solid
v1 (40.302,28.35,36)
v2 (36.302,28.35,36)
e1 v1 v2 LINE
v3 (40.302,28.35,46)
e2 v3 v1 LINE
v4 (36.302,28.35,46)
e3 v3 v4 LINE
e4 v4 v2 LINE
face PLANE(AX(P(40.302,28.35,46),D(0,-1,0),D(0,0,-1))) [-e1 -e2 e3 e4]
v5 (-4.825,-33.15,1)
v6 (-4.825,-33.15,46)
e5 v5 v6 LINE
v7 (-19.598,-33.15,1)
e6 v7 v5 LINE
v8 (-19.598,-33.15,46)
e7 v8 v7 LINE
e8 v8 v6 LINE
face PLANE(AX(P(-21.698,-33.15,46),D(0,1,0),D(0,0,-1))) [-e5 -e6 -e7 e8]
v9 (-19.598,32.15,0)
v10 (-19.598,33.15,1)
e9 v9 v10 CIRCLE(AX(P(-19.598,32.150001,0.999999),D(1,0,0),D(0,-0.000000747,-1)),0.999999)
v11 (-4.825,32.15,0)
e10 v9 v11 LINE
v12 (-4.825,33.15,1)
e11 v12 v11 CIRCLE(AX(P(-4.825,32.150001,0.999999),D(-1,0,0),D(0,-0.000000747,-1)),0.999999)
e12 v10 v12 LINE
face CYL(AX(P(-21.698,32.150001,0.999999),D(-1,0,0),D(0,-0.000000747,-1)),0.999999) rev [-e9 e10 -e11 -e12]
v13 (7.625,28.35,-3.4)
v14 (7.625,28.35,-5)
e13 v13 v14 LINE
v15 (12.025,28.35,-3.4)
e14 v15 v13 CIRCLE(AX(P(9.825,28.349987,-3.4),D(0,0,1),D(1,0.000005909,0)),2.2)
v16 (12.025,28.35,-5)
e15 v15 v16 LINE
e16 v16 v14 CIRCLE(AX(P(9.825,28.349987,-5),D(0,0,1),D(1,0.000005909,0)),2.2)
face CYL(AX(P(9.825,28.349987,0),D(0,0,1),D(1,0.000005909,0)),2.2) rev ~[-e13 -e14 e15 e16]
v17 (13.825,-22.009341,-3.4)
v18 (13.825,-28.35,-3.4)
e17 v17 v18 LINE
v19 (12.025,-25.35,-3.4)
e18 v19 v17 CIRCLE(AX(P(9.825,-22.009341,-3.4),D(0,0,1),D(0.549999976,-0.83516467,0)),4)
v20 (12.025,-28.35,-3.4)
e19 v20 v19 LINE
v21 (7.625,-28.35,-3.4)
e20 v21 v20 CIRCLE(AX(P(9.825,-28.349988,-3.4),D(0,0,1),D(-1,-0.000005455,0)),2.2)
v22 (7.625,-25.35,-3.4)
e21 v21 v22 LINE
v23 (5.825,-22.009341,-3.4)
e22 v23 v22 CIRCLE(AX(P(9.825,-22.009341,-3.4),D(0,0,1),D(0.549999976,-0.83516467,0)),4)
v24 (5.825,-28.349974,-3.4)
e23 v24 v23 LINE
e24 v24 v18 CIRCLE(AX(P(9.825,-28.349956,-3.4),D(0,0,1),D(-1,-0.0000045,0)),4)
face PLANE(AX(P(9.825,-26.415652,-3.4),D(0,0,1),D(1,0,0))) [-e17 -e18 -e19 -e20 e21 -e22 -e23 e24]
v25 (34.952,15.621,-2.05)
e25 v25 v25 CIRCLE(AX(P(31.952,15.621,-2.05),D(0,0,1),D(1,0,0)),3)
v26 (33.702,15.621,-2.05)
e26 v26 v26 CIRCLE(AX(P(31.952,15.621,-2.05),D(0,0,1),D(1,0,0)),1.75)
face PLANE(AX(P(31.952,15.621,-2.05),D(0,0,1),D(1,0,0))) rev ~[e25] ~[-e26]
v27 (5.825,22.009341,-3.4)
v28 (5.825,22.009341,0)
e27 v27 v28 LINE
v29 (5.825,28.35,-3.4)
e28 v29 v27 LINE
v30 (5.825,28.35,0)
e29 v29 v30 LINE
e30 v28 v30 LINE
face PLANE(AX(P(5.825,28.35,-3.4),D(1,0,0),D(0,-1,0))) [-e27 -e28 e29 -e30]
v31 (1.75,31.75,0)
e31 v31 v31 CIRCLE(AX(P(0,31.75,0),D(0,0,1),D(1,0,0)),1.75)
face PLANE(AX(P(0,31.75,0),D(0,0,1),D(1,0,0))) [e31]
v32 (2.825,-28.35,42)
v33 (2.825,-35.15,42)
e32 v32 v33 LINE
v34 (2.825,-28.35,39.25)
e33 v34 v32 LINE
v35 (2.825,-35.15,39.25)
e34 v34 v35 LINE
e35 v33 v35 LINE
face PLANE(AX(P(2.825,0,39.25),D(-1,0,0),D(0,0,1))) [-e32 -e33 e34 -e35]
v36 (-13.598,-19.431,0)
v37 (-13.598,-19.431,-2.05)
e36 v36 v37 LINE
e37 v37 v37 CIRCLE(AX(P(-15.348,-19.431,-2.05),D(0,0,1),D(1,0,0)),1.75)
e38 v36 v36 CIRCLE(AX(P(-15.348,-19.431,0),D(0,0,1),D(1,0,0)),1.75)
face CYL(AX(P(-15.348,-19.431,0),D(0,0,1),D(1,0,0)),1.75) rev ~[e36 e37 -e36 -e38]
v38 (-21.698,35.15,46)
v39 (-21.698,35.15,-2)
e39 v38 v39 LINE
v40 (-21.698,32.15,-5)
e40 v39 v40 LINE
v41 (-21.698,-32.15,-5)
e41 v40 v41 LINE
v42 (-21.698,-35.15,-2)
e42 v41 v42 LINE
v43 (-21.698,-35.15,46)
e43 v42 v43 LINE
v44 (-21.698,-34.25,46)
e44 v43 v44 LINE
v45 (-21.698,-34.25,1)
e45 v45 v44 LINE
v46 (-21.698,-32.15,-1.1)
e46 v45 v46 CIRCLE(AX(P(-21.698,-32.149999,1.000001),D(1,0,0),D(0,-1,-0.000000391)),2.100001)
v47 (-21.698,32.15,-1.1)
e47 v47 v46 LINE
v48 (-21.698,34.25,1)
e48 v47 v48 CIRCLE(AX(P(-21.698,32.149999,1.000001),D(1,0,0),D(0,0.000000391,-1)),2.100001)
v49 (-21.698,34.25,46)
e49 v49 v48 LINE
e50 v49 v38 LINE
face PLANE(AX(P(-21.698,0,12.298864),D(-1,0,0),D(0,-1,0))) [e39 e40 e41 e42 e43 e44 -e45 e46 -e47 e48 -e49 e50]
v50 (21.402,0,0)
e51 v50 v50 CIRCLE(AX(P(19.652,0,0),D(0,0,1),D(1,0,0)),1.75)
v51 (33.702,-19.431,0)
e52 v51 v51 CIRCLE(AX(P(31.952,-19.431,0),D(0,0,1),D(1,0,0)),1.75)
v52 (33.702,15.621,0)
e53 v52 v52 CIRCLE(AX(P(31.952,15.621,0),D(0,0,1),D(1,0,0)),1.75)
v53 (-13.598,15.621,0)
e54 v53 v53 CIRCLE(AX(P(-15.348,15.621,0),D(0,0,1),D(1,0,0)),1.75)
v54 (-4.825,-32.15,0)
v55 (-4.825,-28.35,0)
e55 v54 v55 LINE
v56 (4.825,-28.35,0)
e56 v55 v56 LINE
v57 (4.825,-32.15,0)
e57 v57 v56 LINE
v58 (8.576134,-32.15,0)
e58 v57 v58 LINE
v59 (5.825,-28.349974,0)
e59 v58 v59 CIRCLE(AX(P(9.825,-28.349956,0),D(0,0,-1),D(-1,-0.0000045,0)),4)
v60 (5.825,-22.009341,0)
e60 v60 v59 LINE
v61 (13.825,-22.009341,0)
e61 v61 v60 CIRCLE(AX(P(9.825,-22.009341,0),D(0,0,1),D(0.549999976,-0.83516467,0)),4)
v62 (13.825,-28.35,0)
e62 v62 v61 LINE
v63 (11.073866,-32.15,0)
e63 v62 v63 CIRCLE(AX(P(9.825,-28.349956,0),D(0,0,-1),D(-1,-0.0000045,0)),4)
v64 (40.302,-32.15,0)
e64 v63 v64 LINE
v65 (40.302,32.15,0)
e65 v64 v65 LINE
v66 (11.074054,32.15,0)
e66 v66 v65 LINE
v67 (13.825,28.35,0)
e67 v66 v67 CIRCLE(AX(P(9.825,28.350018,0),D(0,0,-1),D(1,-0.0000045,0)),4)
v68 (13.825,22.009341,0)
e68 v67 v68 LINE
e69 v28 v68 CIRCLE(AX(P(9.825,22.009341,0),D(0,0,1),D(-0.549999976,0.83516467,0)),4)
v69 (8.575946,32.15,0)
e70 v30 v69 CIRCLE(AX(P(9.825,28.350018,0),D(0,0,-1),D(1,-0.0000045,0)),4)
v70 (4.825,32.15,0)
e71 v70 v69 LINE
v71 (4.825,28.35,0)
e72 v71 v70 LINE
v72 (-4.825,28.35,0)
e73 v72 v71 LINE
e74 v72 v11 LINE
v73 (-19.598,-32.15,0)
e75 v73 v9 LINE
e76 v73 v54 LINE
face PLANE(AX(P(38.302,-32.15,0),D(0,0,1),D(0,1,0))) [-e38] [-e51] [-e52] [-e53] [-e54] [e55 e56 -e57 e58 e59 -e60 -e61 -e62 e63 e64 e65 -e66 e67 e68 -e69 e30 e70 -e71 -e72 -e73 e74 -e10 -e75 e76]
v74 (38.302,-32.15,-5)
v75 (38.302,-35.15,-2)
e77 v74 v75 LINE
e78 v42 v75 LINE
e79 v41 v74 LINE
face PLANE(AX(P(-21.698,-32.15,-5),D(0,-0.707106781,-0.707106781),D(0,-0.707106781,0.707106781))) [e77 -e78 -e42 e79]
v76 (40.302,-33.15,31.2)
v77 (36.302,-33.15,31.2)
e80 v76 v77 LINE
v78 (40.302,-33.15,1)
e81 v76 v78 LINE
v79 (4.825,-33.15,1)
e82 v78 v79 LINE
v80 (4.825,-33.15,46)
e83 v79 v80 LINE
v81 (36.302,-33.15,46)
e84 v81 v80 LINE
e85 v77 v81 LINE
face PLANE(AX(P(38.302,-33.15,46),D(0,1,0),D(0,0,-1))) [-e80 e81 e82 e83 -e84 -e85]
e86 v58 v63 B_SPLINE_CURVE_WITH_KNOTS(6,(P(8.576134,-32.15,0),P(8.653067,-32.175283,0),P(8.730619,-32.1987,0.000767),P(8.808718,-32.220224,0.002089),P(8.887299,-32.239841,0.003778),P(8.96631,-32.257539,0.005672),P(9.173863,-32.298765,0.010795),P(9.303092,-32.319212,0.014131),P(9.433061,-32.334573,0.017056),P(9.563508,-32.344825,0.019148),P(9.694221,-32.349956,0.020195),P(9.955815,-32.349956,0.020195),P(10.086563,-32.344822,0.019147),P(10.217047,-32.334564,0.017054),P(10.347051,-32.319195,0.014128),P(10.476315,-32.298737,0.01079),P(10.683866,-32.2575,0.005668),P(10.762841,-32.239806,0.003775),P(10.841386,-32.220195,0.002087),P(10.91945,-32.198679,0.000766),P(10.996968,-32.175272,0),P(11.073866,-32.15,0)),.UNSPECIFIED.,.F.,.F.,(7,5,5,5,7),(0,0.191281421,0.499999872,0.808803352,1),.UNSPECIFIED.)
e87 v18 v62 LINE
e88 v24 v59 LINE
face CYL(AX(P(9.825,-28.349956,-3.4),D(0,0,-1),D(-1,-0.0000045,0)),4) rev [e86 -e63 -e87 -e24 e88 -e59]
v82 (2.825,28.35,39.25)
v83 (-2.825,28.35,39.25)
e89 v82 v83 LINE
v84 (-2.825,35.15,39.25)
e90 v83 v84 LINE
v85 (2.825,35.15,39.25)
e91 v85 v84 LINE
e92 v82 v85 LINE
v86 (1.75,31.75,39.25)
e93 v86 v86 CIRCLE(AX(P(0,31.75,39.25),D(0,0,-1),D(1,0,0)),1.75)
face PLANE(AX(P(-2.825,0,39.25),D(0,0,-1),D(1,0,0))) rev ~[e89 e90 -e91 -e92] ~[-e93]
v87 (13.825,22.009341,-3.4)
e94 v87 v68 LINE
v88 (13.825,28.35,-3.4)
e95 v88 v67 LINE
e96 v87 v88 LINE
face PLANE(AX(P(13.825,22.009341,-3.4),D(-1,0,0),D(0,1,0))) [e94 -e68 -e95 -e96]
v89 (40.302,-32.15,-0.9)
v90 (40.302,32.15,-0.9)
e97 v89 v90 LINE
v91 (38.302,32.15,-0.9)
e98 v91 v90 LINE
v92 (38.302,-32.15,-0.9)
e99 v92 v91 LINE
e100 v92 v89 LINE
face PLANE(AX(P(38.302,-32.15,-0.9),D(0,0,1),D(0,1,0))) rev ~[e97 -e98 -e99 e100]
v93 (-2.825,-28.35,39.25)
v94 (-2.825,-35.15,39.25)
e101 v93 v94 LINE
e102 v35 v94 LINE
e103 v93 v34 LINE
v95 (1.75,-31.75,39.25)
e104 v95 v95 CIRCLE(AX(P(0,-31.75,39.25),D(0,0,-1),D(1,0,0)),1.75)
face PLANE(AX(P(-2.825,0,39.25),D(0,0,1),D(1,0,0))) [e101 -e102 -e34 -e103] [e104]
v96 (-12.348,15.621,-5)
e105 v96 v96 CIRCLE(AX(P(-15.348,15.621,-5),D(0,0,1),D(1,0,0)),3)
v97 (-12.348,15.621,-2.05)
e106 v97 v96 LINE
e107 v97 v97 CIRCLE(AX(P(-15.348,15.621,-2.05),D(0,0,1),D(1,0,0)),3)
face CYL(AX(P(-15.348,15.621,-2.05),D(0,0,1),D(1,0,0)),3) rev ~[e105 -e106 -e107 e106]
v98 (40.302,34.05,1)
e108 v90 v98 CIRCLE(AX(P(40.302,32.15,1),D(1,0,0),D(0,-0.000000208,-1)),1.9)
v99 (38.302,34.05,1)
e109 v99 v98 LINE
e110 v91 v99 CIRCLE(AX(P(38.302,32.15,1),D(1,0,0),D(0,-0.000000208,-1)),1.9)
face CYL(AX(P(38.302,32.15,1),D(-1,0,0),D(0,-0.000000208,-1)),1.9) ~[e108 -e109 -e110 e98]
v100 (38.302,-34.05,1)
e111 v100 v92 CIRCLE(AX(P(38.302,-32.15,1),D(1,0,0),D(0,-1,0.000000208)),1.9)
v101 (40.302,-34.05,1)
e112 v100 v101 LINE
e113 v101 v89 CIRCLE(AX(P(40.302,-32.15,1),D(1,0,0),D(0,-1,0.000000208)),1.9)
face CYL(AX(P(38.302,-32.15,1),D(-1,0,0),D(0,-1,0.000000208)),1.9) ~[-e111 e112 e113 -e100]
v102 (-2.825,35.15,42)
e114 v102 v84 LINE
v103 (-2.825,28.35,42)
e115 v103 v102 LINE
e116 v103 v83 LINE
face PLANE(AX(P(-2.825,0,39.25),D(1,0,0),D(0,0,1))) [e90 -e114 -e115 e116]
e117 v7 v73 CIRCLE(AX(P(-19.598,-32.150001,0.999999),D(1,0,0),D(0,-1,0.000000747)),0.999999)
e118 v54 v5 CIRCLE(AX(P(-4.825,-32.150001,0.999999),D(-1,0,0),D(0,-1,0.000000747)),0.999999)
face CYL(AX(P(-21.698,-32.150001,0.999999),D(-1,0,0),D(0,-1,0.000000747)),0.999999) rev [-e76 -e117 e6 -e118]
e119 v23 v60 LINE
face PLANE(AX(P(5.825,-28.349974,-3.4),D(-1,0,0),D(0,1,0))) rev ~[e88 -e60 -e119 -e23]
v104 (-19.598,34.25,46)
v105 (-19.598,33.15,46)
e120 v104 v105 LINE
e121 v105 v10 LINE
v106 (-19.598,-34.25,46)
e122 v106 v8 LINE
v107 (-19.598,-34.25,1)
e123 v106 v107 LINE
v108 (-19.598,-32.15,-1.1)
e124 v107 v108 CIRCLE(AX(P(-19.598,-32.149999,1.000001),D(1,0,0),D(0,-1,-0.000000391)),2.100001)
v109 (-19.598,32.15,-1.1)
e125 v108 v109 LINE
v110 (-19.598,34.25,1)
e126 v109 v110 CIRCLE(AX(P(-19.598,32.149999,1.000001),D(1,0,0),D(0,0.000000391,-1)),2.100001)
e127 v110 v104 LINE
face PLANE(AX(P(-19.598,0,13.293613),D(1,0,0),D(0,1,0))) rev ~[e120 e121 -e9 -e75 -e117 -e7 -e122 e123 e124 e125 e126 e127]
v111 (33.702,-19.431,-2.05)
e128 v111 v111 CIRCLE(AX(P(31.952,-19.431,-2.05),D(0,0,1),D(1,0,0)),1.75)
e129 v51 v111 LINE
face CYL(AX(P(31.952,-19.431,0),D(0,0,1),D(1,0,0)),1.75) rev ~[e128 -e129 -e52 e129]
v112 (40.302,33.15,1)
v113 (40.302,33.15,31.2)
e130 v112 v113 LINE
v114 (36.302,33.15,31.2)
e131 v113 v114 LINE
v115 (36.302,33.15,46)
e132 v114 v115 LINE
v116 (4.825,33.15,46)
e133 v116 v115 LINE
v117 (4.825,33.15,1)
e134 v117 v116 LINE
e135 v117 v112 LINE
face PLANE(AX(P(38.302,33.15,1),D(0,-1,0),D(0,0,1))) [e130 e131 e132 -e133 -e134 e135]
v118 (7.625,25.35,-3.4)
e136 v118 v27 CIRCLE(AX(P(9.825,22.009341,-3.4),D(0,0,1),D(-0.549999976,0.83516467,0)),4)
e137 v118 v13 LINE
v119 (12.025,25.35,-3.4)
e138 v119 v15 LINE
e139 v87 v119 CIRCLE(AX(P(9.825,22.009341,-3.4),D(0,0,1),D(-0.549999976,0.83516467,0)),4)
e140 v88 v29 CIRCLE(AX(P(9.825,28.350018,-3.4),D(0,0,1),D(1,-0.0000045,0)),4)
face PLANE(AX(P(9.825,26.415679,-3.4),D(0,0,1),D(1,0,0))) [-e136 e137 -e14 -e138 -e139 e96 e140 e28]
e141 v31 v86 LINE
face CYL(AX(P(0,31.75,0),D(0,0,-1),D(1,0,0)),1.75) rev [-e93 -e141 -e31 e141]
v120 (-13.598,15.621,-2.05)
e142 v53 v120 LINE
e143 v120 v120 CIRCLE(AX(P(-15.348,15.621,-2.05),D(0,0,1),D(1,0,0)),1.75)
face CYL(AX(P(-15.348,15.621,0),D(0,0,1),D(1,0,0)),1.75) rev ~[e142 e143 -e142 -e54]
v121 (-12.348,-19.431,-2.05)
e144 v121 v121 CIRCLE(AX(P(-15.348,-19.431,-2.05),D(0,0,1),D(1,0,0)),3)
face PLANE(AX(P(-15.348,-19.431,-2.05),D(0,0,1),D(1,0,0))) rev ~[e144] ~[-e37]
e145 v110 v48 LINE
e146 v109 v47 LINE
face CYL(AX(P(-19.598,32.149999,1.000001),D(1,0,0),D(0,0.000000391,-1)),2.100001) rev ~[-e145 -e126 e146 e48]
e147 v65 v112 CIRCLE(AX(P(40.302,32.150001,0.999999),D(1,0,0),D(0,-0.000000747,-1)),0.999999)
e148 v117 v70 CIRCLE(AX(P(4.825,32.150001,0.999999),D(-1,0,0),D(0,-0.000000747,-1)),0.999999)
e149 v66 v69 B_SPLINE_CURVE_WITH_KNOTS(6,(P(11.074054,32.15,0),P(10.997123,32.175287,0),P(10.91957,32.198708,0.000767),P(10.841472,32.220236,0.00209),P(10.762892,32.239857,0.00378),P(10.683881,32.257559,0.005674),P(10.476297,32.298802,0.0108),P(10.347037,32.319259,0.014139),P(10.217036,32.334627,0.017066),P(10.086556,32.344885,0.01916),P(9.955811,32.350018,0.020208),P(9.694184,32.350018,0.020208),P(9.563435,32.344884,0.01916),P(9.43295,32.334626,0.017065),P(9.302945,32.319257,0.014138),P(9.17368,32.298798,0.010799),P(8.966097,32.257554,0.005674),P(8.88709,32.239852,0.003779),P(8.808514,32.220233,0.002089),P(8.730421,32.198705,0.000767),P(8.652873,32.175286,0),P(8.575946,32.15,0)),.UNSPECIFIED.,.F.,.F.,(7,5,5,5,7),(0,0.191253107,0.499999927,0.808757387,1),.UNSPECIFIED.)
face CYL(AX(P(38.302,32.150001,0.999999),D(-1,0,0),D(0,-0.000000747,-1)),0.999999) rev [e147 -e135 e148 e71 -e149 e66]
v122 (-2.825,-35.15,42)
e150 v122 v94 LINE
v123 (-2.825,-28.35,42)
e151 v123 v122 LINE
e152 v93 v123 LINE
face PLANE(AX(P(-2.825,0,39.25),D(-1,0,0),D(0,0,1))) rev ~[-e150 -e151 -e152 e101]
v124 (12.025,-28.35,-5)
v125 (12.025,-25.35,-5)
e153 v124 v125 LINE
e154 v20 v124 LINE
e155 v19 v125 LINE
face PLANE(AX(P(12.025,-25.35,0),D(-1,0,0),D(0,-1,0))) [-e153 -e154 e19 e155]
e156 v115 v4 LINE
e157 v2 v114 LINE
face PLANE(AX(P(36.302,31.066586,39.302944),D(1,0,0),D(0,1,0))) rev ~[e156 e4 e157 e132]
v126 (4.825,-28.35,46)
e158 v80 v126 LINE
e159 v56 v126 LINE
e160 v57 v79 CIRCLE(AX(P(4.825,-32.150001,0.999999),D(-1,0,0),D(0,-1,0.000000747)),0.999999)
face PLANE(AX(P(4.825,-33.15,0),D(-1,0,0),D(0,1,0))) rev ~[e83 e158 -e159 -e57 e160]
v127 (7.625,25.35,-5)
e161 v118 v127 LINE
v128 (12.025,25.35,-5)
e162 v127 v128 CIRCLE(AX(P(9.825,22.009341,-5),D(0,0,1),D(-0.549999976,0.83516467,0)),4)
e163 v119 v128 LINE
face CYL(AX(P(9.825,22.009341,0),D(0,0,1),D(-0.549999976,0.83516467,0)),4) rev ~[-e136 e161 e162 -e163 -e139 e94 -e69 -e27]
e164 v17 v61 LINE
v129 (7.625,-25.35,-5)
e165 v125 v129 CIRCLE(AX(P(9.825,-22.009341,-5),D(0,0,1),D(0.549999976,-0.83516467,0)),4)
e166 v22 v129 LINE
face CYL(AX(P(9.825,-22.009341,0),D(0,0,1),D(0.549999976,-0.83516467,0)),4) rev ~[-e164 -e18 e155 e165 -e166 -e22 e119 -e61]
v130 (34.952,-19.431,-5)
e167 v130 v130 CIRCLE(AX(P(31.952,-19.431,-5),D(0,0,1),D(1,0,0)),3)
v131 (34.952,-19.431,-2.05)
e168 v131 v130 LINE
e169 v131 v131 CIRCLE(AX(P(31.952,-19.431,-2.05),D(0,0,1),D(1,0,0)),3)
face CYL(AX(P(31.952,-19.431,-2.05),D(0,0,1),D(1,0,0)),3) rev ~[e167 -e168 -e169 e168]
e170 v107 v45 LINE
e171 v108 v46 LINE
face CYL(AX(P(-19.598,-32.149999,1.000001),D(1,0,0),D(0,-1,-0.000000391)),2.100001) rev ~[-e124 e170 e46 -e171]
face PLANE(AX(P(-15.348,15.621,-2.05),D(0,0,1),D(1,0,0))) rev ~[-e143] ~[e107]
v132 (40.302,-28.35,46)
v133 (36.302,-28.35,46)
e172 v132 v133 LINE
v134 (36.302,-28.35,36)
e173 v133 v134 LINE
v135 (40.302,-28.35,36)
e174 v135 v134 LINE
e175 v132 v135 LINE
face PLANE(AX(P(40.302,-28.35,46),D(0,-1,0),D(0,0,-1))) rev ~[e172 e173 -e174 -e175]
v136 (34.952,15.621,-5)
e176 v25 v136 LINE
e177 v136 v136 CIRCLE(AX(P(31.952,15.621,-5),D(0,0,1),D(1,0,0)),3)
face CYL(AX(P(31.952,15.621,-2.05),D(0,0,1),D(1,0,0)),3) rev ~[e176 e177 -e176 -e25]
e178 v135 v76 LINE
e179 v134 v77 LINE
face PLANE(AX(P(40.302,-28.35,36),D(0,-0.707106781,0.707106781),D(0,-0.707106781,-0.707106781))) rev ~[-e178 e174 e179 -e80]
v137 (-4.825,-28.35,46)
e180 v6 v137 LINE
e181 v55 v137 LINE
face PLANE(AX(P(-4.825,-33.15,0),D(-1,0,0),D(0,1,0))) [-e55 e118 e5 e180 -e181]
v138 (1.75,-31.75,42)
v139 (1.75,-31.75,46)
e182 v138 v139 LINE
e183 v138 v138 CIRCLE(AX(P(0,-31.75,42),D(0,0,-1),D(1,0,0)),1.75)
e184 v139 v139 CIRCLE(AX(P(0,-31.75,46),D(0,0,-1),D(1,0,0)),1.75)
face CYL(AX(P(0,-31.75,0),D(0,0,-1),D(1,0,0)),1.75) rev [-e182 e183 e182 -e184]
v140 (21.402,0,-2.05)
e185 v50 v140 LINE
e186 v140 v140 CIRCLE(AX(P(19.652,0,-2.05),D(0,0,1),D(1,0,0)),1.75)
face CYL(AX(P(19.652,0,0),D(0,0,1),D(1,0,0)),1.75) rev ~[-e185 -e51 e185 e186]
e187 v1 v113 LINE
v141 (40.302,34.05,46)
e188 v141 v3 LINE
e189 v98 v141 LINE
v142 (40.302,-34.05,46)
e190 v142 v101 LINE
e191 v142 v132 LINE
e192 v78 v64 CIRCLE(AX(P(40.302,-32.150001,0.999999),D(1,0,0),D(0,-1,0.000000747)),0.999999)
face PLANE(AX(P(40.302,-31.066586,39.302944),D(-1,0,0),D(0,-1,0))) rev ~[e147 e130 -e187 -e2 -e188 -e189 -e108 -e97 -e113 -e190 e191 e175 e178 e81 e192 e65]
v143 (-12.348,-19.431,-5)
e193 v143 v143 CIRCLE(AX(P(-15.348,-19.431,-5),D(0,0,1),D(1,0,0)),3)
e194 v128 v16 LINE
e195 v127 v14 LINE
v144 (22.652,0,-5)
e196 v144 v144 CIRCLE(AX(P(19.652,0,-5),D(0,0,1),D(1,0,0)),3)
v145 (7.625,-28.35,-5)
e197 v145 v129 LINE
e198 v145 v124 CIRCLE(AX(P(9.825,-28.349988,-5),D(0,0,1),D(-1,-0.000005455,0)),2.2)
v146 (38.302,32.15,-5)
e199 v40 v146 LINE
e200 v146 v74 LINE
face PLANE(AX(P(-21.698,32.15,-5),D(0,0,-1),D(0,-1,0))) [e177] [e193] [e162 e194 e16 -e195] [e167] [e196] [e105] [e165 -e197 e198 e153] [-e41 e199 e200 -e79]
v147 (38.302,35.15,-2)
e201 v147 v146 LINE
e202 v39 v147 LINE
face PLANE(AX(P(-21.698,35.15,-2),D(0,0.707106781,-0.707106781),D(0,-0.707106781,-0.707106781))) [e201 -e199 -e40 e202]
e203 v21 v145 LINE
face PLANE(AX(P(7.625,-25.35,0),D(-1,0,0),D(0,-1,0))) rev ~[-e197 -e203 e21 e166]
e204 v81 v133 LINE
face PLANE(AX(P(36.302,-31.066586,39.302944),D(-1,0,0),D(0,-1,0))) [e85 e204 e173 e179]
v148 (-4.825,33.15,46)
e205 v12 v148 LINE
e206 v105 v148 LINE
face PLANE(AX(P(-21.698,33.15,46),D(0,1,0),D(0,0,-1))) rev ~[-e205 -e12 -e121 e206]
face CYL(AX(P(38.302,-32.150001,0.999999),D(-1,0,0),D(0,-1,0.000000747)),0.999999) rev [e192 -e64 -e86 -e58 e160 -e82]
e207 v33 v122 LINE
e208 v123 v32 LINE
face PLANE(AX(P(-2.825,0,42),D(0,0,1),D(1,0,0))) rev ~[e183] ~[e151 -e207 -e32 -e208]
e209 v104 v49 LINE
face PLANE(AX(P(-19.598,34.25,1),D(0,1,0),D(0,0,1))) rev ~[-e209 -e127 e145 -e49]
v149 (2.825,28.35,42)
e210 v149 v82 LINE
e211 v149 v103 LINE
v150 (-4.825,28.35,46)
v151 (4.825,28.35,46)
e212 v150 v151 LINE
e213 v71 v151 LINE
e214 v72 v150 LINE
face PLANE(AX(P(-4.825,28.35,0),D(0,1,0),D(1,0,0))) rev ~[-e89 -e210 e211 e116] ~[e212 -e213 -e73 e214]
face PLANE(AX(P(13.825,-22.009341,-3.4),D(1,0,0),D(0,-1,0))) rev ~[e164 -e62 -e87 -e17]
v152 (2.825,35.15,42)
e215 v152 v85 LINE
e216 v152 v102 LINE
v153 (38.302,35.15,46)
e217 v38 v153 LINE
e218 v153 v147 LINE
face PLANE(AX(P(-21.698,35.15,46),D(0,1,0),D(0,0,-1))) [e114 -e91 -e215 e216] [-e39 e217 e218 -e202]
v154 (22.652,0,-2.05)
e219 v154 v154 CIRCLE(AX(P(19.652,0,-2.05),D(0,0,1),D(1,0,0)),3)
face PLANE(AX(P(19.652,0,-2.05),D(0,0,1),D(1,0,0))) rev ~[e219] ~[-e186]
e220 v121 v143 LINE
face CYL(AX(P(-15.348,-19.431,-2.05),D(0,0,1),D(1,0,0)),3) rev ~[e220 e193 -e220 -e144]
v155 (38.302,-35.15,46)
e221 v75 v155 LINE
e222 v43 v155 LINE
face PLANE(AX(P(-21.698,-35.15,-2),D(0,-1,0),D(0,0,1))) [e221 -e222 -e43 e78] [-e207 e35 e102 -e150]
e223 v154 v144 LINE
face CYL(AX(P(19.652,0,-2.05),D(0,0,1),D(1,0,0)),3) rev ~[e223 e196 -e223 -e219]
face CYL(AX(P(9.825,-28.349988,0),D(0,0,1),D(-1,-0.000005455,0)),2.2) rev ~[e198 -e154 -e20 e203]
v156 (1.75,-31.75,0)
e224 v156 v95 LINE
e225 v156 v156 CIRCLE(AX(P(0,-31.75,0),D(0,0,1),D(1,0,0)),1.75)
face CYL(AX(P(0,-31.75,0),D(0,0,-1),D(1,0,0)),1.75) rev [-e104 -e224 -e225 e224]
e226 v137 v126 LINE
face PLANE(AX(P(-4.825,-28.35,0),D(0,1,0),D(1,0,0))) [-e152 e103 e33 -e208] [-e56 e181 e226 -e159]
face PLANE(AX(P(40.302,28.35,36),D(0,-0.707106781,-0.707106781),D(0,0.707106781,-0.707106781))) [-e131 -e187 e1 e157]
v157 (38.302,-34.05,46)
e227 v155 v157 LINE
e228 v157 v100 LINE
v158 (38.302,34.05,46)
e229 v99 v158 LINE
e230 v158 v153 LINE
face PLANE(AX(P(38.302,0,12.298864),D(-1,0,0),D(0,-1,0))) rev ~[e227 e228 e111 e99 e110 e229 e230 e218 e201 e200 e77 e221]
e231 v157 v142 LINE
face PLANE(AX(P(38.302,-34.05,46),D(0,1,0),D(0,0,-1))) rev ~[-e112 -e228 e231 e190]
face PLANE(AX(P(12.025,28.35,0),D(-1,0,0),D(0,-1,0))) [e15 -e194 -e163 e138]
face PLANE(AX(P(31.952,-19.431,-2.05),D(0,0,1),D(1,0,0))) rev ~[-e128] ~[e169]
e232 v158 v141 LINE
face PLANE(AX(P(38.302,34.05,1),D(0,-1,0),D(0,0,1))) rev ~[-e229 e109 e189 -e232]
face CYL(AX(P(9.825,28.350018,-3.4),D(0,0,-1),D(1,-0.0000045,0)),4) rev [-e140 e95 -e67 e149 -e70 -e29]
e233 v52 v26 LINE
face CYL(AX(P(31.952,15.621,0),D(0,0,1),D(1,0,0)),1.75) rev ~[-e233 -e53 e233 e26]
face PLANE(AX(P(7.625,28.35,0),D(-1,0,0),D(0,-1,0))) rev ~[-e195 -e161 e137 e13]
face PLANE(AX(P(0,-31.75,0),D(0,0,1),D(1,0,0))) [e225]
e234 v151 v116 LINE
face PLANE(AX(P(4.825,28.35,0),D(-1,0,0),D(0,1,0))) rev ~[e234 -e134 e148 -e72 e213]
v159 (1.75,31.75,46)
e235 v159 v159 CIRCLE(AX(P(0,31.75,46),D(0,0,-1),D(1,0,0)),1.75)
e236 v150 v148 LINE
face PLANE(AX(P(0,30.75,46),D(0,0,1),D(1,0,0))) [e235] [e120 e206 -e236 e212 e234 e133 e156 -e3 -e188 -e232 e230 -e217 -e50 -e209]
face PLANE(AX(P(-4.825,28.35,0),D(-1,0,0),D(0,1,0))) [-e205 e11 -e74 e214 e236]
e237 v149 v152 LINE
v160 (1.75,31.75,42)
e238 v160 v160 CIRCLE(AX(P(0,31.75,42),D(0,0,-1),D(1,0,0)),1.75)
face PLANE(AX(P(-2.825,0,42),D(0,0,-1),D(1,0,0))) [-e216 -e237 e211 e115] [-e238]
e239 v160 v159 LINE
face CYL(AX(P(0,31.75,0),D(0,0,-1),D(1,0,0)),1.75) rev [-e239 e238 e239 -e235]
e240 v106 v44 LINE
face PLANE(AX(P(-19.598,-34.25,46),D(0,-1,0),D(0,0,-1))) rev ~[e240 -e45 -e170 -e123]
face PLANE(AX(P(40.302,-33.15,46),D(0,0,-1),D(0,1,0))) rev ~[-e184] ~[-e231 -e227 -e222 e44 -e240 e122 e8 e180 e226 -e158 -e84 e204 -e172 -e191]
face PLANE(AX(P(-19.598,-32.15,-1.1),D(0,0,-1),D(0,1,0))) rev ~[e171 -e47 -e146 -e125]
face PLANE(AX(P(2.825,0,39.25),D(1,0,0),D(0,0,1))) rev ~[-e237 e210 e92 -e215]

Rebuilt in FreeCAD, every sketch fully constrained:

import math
import FreeCAD as App
import Part
import Sketcher
from FreeCAD import Vector
Q = App.Units.Quantity

doc = App.newDocument("Part")
body = doc.addObject("PartDesign::Body", "Body")

sketch1 = body.newObject("Sketcher::SketchObject", "Sketch")
sketch1.AttachmentSupport = (doc.getObject("YZ_Plane"), [""])
sketch1.MapMode = "FlatFace"
sketch1.AttachmentOffset = App.Placement(Vector(0, 0, -21.698), App.Rotation())
sketch1.addGeometry([
    Part.ArcOfCircle(Part.Circle(Vector(-32.150001, 0.999999, 0), Vector(0, 0, 1), 0.999999), math.radians(179.999957), math.radians(270.000043)),
    Part.LineSegment(Vector(-33.15, 1, 0), Vector(-33.15, 46, 0)),
    Part.LineSegment(Vector(-33.15, 46, 0), Vector(-35.15, 46, 0)),
    Part.LineSegment(Vector(-35.15, 46, 0), Vector(-35.15, -2, 0)),
    Part.LineSegment(Vector(-35.15, -2, 0), Vector(-32.15, -5, 0)),
    Part.LineSegment(Vector(-32.15, -5, 0), Vector(32.15, -5, 0)),
    Part.LineSegment(Vector(32.15, -5, 0), Vector(35.15, -2, 0)),
    Part.LineSegment(Vector(35.15, -2, 0), Vector(35.15, 46, 0)),
    Part.LineSegment(Vector(35.15, 46, 0), Vector(33.15, 46, 0)),
    Part.LineSegment(Vector(33.15, 46, 0), Vector(33.15, 1, 0)),
    Part.ArcOfCircle(Part.Circle(Vector(32.150001, 0.999999, 0), Vector(0, 0, 1), 0.999999), math.radians(-90.000043), math.radians(0.000043)),
    Part.LineSegment(Vector(32.15, 0, 0), Vector(-32.15, 0, 0)),
], False)
sketch1.addConstraint([
    Sketcher.Constraint("Tangent", 0, 1, 1, 1),
    Sketcher.Constraint("Coincident", 1, 2, 2, 1),
    Sketcher.Constraint("Coincident", 2, 2, 3, 1),
    Sketcher.Constraint("Coincident", 3, 2, 4, 1),
    Sketcher.Constraint("Coincident", 4, 2, 5, 1),
    Sketcher.Constraint("Coincident", 5, 2, 6, 1),
    Sketcher.Constraint("Coincident", 6, 2, 7, 1),
    Sketcher.Constraint("Coincident", 7, 2, 8, 1),
    Sketcher.Constraint("Coincident", 8, 2, 9, 1),
    Sketcher.Constraint("Tangent", 9, 2, 10, 2),
    Sketcher.Constraint("Tangent", 10, 1, 11, 1),
    Sketcher.Constraint("Tangent", 11, 2, 0, 2),
    Sketcher.Constraint("Vertical", 1),
    Sketcher.Constraint("Horizontal", 2),
    Sketcher.Constraint("Vertical", 3),
    Sketcher.Constraint("Horizontal", 5),
    Sketcher.Constraint("Vertical", 7),
    Sketcher.Constraint("Horizontal", 8),
    Sketcher.Constraint("Vertical", 9),
    Sketcher.Constraint("Horizontal", 11),
    Sketcher.Constraint("Equal", 0, 10),
    Sketcher.Constraint("Symmetric", 10, 1, 11, 2, -1, 1),
    Sketcher.Constraint("Symmetric", 3, 2, 6, 2, -2),
    Sketcher.Constraint("Perpendicular", 4, 6),
    Sketcher.Constraint("Horizontal", 2, 2, 7, 2),
    Sketcher.Constraint("Vertical", 0, 3, 4, 2),
    Sketcher.Constraint("Vertical", 10, 3, 5, 2),
    Sketcher.Constraint("Radius", 0, Q("0.999999 mm")),
    Sketcher.Constraint("DistanceX", 2, 2, 2, 1, Q("2 mm")),
    Sketcher.Constraint("DistanceY", 1, 1, 1, 2, Q("45 mm")),
    Sketcher.Constraint("DistanceY", 3, 2, 3, 1, Q("48 mm")),
    Sketcher.Constraint("DistanceX", 5, 1, 5, 2, Q("64.3 mm")),
])
pad1 = body.newObject("PartDesign::Pad", "Pad")
pad1.Profile = sketch1
pad1.Length = 60

sketch2 = body.newObject("Sketcher::SketchObject", "Sketch001")
sketch2.AttachmentSupport = (doc.getObject("YZ_Plane"), [""])
sketch2.MapMode = "FlatFace"
sketch2.AttachmentOffset = App.Placement(Vector(0, 0, -19.598), App.Rotation())
sketch2.addGeometry([
    Part.LineSegment(Vector(-34.25, 46, 0), Vector(-34.25, 1, 0)),
    Part.ArcOfCircle(Part.Circle(Vector(-32.149999, 1.000001, 0), Vector(0, 0, 1), 2.100001), math.radians(-179.999978), math.radians(-90.000022)),
    Part.LineSegment(Vector(-32.15, -1.1, 0), Vector(32.15, -1.1, 0)),
    Part.ArcOfCircle(Part.Circle(Vector(32.149999, 1.000001, 0), Vector(0, 0, 1), 2.100001), math.radians(-89.999978), math.radians(-0.000022)),
    Part.LineSegment(Vector(34.25, 1, 0), Vector(34.25, 46, 0)),
    Part.LineSegment(Vector(34.25, 46, 0), Vector(33.15, 46, 0)),
    Part.LineSegment(Vector(33.15, 46, 0), Vector(33.15, 1, 0)),
    Part.ArcOfCircle(Part.Circle(Vector(32.150001, 0.999999, 0), Vector(0, 0, 1), 0.999999), math.radians(-90.000043), math.radians(0.000043)),
    Part.LineSegment(Vector(32.15, 0, 0), Vector(-32.15, 0, 0)),
    Part.ArcOfCircle(Part.Circle(Vector(-32.150001, 0.999999, 0), Vector(0, 0, 1), 0.999999), math.radians(179.999957), math.radians(270.000043)),
    Part.LineSegment(Vector(-33.15, 1, 0), Vector(-33.15, 46, 0)),
    Part.LineSegment(Vector(-33.15, 46, 0), Vector(-34.25, 46, 0)),
], False)
sketch2.addConstraint([
    Sketcher.Constraint("Tangent", 0, 2, 1, 1),
    Sketcher.Constraint("Tangent", 1, 2, 2, 1),
    Sketcher.Constraint("Tangent", 2, 2, 3, 1),
    Sketcher.Constraint("Tangent", 3, 2, 4, 1),
    Sketcher.Constraint("Coincident", 4, 2, 5, 1),
    Sketcher.Constraint("Coincident", 5, 2, 6, 1),
    Sketcher.Constraint("Tangent", 6, 2, 7, 2),
    Sketcher.Constraint("Tangent", 7, 1, 8, 1),
    Sketcher.Constraint("Tangent", 8, 2, 9, 2),
    Sketcher.Constraint("Tangent", 9, 1, 10, 1),
    Sketcher.Constraint("Coincident", 10, 2, 11, 1),
    Sketcher.Constraint("Coincident", 11, 2, 0, 1),
    Sketcher.Constraint("Vertical", 0),
    Sketcher.Constraint("Horizontal", 2),
    Sketcher.Constraint("Vertical", 4),
    Sketcher.Constraint("Horizontal", 5),
    Sketcher.Constraint("Vertical", 6),
    Sketcher.Constraint("Horizontal", 8),
    Sketcher.Constraint("Vertical", 10),
    Sketcher.Constraint("Horizontal", 11),
    Sketcher.Constraint("Coincident", 7, 3, 3, 3),
    Sketcher.Constraint("Coincident", 9, 3, 1, 3),
    Sketcher.Constraint("Equal", 1, 3),
    Sketcher.Constraint("Symmetric", 7, 1, 8, 2, -1, 1),
    Sketcher.Constraint("Horizontal", 5, 2, 10, 2),
    Sketcher.Constraint("Radius", 7, Q("0.999999 mm")),
    Sketcher.Constraint("Radius", 1, Q("2.100001 mm")),
    Sketcher.Constraint("DistanceY", 0, 2, 0, 1, Q("45 mm")),
    Sketcher.Constraint("DistanceX", 2, 1, 2, 2, Q("64.3 mm")),
])
pocket1 = body.newObject("PartDesign::Pocket", "Pocket")
pocket1.Profile = sketch2
pocket1.Type = "ThroughAll"

sketch3 = body.newObject("Sketcher::SketchObject", "Sketch002")
sketch3.AttachmentSupport = (doc.getObject("XY_Plane"), [""])
sketch3.MapMode = "FlatFace"
sketch3.addGeometry([
    Part.LineSegment(Vector(-4.825, 33.15, 0), Vector(-4.825, 28.35, 0)),
    Part.LineSegment(Vector(-4.825, 28.35, 0), Vector(4.825, 28.35, 0)),
    Part.LineSegment(Vector(4.825, 28.35, 0), Vector(4.825, 33.15, 0)),
    Part.LineSegment(Vector(4.825, 33.15, 0), Vector(-4.825, 33.15, 0)),
    Part.LineSegment(Vector(-4.825, -28.35, 0), Vector(-4.825, -33.15, 0)),
    Part.LineSegment(Vector(-4.825, -33.15, 0), Vector(4.825, -33.15, 0)),
    Part.LineSegment(Vector(4.825, -33.15, 0), Vector(4.825, -28.35, 0)),
    Part.LineSegment(Vector(4.825, -28.35, 0), Vector(-4.825, -28.35, 0)),
], False)
sketch3.addConstraint([
    Sketcher.Constraint("Coincident", 0, 2, 1, 1),
    Sketcher.Constraint("Coincident", 1, 2, 2, 1),
    Sketcher.Constraint("Coincident", 2, 2, 3, 1),
    Sketcher.Constraint("Coincident", 3, 2, 0, 1),
    Sketcher.Constraint("Coincident", 4, 2, 5, 1),
    Sketcher.Constraint("Coincident", 5, 2, 6, 1),
    Sketcher.Constraint("Coincident", 6, 2, 7, 1),
    Sketcher.Constraint("Coincident", 7, 2, 4, 1),
    Sketcher.Constraint("Vertical", 0),
    Sketcher.Constraint("Horizontal", 1),
    Sketcher.Constraint("Vertical", 2),
    Sketcher.Constraint("Horizontal", 3),
    Sketcher.Constraint("Vertical", 4),
    Sketcher.Constraint("Horizontal", 5),
    Sketcher.Constraint("Vertical", 6),
    Sketcher.Constraint("Horizontal", 7),
    Sketcher.Constraint("Symmetric", 2, 2, 4, 2, -1, 1),
    Sketcher.Constraint("Symmetric", 0, 2, 6, 2, -1, 1),
    Sketcher.Constraint("Vertical", 3, 2, 4, 2),
    Sketcher.Constraint("DistanceY", 0, 2, 0, 1, Q("4.8 mm")),
    Sketcher.Constraint("DistanceX", 1, 1, 1, 2, Q("9.65 mm")),
    Sketcher.Constraint("DistanceY", 4, 2, 0, 2, Q("61.5 mm")),
])
pad2 = body.newObject("PartDesign::Pad", "Pad001")
pad2.Profile = sketch3
pad2.Length = 46

sketch4 = body.newObject("Sketcher::SketchObject", "Sketch003")
sketch4.AttachmentSupport = (doc.getObject("XY_Plane"), [""])
sketch4.MapMode = "FlatFace"
sketch4.addGeometry([
    Part.Circle(Vector(0, 31.75, 0), Vector(0, 0, 1), 1.75),
    Part.Circle(Vector(0, -31.75, 0), Vector(0, 0, 1), 1.75),
], False)
sketch4.addConstraint([
    Sketcher.Constraint("Equal", 0, 1),
    Sketcher.Constraint("Symmetric", 0, 3, 1, 3, -1, 1),
    Sketcher.Constraint("PointOnObject", 0, 3, -2),
    Sketcher.Constraint("Diameter", 0, Q("3.5 mm")),
    Sketcher.Constraint("DistanceY", 1, 3, 0, 3, Q("63.5 mm")),
])
pocket2 = body.newObject("PartDesign::Pocket", "Pocket001")
pocket2.Profile = sketch4
pocket2.Type = "ThroughAll"
pocket2.Reversed = True

sketch5 = body.newObject("Sketcher::SketchObject", "Sketch004")
sketch5.AttachmentSupport = (doc.getObject("XY_Plane"), [""])
sketch5.MapMode = "FlatFace"
sketch5.addGeometry([
    Part.Circle(Vector(-15.348, 15.621, 0), Vector(0, 0, 1), 1.75),
    Part.Circle(Vector(31.952, 15.621, 0), Vector(0, 0, 1), 1.75),
    Part.Circle(Vector(19.652, 0, 0), Vector(0, 0, 1), 1.75),
    Part.Circle(Vector(31.952, -19.431, 0), Vector(0, 0, 1), 1.75),
    Part.Circle(Vector(-15.348, -19.431, 0), Vector(0, 0, 1), 1.75),
    Part.ArcOfCircle(Part.Circle(Vector(9.825, 22.009341, 0), Vector(0, 0, 1), 4), math.radians(123.367011), math.radians(416.632989)),
    Part.LineSegment(Vector(12.025, 25.35, 0), Vector(12.025, 28.35, 0)),
    Part.ArcOfCircle(Part.Circle(Vector(9.825, 28.349987, 0), Vector(0, 0, 1), 2.2), math.radians(0.000339), math.radians(179.999661)),
    Part.LineSegment(Vector(7.625, 28.35, 0), Vector(7.625, 25.35, 0)),
    Part.ArcOfCircle(Part.Circle(Vector(9.825, -22.009341, 0), Vector(0, 0, 1), 4), math.radians(-56.632989), math.radians(236.632989)),
    Part.LineSegment(Vector(7.625, -25.35, 0), Vector(7.625, -28.35, 0)),
    Part.ArcOfCircle(Part.Circle(Vector(9.825, -28.349988, 0), Vector(0, 0, 1), 2.2), math.radians(-179.999687), math.radians(-0.000313)),
    Part.LineSegment(Vector(12.025, -28.35, 0), Vector(12.025, -25.35, 0)),
], False)
sketch5.addConstraint([
    Sketcher.Constraint("Coincident", 5, 2, 6, 1),
    Sketcher.Constraint("Coincident", 6, 2, 7, 1),
    Sketcher.Constraint("Coincident", 7, 2, 8, 1),
    Sketcher.Constraint("Coincident", 8, 2, 5, 1),
    Sketcher.Constraint("Coincident", 9, 2, 10, 1),
    Sketcher.Constraint("Coincident", 10, 2, 11, 1),
    Sketcher.Constraint("Coincident", 11, 2, 12, 1),
    Sketcher.Constraint("Coincident", 12, 2, 9, 1),
    Sketcher.Constraint("Vertical", 6),
    Sketcher.Constraint("Vertical", 8),
    Sketcher.Constraint("Vertical", 10),
    Sketcher.Constraint("Vertical", 12),
    Sketcher.Constraint("Equal", 0, 1),
    Sketcher.Constraint("Equal", 1, 2),
    Sketcher.Constraint("Equal", 2, 3),
    Sketcher.Constraint("Equal", 3, 4),
    Sketcher.Constraint("Equal", 5, 9),
    Sketcher.Constraint("Equal", 7, 11),
    Sketcher.Constraint("Symmetric", 5, 3, 9, 3, -1),
    Sketcher.Constraint("Symmetric", 7, 3, 11, 3, -1),
    Sketcher.Constraint("PointOnObject", 2, 3, -1),
    Sketcher.Constraint("Horizontal", 0, 3, 1, 3),
    Sketcher.Constraint("Horizontal", 3, 3, 4, 3),
    Sketcher.Constraint("Horizontal", 6, 2, 7, 2),
    Sketcher.Constraint("Horizontal", 5, 2, 8, 2),
    Sketcher.Constraint("Horizontal", 10, 2, 11, 2),
    Sketcher.Constraint("Vertical", 1, 3, 3, 3),
    Sketcher.Constraint("Vertical", 0, 3, 4, 3),
    Sketcher.Constraint("Equal", 8, 10),
    Sketcher.Constraint("Radius", 5, Q("4 mm")),
    Sketcher.Constraint("Diameter", 0, Q("3.5 mm")),
    Sketcher.Constraint("Radius", 7, Q("2.2 mm")),
    Sketcher.Constraint("DistanceY", 6, 1, 6, 2, Q("3 mm")),
    Sketcher.Constraint("DistanceX", 0, 3, 2, 3, Q("35 mm")),
    Sketcher.Constraint("DistanceX", 0, 3, 1, 3, Q("47.3 mm")),
    Sketcher.Constraint("DistanceY", -1, 1, 5, 2, Q("25.35 mm")),
    Sketcher.Constraint("DistanceX", 0, 3, -1, 1, Q("15.348 mm")),
    Sketcher.Constraint("DistanceY", -1, 1, 0, 3, Q("15.621 mm")),
    Sketcher.Constraint("DistanceY", 3, 3, -1, 1, Q("19.431 mm")),
    Sketcher.Constraint("DistanceX", -1, 1, 5, 3, Q("9.825 mm")),
    Sketcher.Constraint("DistanceY", 11, 3, -1, 1, Q("28.349988 mm")),
])
pocket3 = body.newObject("PartDesign::Pocket", "Pocket002")
pocket3.Profile = sketch5
pocket3.Type = "ThroughAll"

sketch6 = body.newObject("Sketcher::SketchObject", "Sketch005")
sketch6.AttachmentSupport = (doc.getObject("XY_Plane"), [""])
sketch6.MapMode = "FlatFace"
sketch6.AttachmentOffset = App.Placement(Vector(0, 0, -2.05), App.Rotation())
sketch6.addGeometry([
    Part.Circle(Vector(-15.348, 15.621, 0), Vector(0, 0, 1), 3),
    Part.Circle(Vector(19.652, 0, 0), Vector(0, 0, 1), 3),
    Part.Circle(Vector(31.952, 15.621, 0), Vector(0, 0, 1), 3),
    Part.Circle(Vector(-15.348, -19.431, 0), Vector(0, 0, 1), 3),
    Part.Circle(Vector(31.952, -19.431, 0), Vector(0, 0, 1), 3),
], False)
sketch6.addConstraint([
    Sketcher.Constraint("Equal", 0, 1),
    Sketcher.Constraint("Equal", 1, 2),
    Sketcher.Constraint("Equal", 2, 3),
    Sketcher.Constraint("Equal", 3, 4),
    Sketcher.Constraint("PointOnObject", 1, 3, -1),
    Sketcher.Constraint("Horizontal", 0, 3, 2, 3),
    Sketcher.Constraint("Horizontal", 3, 3, 4, 3),
    Sketcher.Constraint("Vertical", 0, 3, 3, 3),
    Sketcher.Constraint("Vertical", 2, 3, 4, 3),
    Sketcher.Constraint("Diameter", 0, Q("6 mm")),
    Sketcher.Constraint("DistanceX", 0, 3, 1, 3, Q("35 mm")),
    Sketcher.Constraint("DistanceX", 1, 3, 2, 3, Q("12.3 mm")),
    Sketcher.Constraint("DistanceX", 0, 3, -1, 1, Q("15.348 mm")),
    Sketcher.Constraint("DistanceY", -1, 1, 0, 3, Q("15.621 mm")),
    Sketcher.Constraint("DistanceY", 3, 3, -1, 1, Q("19.431 mm")),
])
pocket4 = body.newObject("PartDesign::Pocket", "Pocket003")
pocket4.Profile = sketch6
pocket4.Type = "ThroughAll"

sketch7 = body.newObject("Sketcher::SketchObject", "Sketch006")
sketch7.AttachmentSupport = (doc.getObject("XY_Plane"), [""])
sketch7.MapMode = "FlatFace"
sketch7.AttachmentOffset = App.Placement(Vector(0, 0, -3.4), App.Rotation())
sketch7.addGeometry([
    Part.ArcOfCircle(Part.Circle(Vector(9.825, 28.350018, 0), Vector(0, 0, 1), 4), math.radians(-0.000258), math.radians(180.000258)),
    Part.LineSegment(Vector(5.825, 28.35, 0), Vector(5.825, 22.009341, 0)),
    Part.LineSegment(Vector(5.825, 22.009341, 0), Vector(13.825, 22.009341, 0)),
    Part.LineSegment(Vector(13.825, 22.009341, 0), Vector(13.825, 28.35, 0)),
    Part.ArcOfCircle(Part.Circle(Vector(9.825, -28.349956, 0), Vector(0, 0, 1), 4), math.radians(-179.999742), math.radians(-0.00063)),
    Part.LineSegment(Vector(13.825, -28.35, 0), Vector(13.825, -22.009341, 0)),
    Part.LineSegment(Vector(13.825, -22.009341, 0), Vector(5.825, -22.009341, 0)),
    Part.LineSegment(Vector(5.825, -22.009341, 0), Vector(5.825, -28.349974, 0)),
], False)
sketch7.addConstraint([
    Sketcher.Constraint("Coincident", 0, 2, 1, 1),
    Sketcher.Constraint("Coincident", 1, 2, 2, 1),
    Sketcher.Constraint("Coincident", 2, 2, 3, 1),
    Sketcher.Constraint("Coincident", 3, 2, 0, 1),
    Sketcher.Constraint("Coincident", 4, 2, 5, 1),
    Sketcher.Constraint("Coincident", 5, 2, 6, 1),
    Sketcher.Constraint("Coincident", 6, 2, 7, 1),
    Sketcher.Constraint("Coincident", 7, 2, 4, 1),
    Sketcher.Constraint("Vertical", 1),
    Sketcher.Constraint("Horizontal", 2),
    Sketcher.Constraint("Vertical", 3),
    Sketcher.Constraint("Vertical", 5),
    Sketcher.Constraint("Horizontal", 6),
    Sketcher.Constraint("Vertical", 7),
    Sketcher.Constraint("Equal", 0, 4),
    Sketcher.Constraint("Symmetric", 3, 2, 4, 2, -1),
    Sketcher.Constraint("Horizontal", 0, 2, 3, 2),
    Sketcher.Constraint("Equal", 3, 5),
    Sketcher.Constraint("Radius", 0, Q("4 mm")),
    Sketcher.Constraint("DistanceY", 4, 2, 3, 2, Q("56.7 mm")),
    Sketcher.Constraint("DistanceX", -1, 1, 0, 3, Q("9.825 mm")),
    Sketcher.Constraint("DistanceY", 1, 2, 1, 1, Q("6.340659 mm")),
    Sketcher.Constraint("DistanceY", 7, 2, 7, 1, Q("6.340633 mm")),
    Sketcher.Constraint("DistanceY", -1, 1, 0, 3, Q("28.350018 mm")),
    Sketcher.Constraint("DistanceY", 4, 3, -1, 1, Q("28.349956 mm")),
])
pocket5 = body.newObject("PartDesign::Pocket", "Pocket004")
pocket5.Profile = sketch7
pocket5.Type = "ThroughAll"
pocket5.Reversed = True

sketch8 = body.newObject("Sketcher::SketchObject", "Sketch007")
sketch8.AttachmentSupport = (doc.getObject("XZ_Plane"), [""])
sketch8.MapMode = "FlatFace"
sketch8.addGeometry([
    Part.LineSegment(Vector(-2.825, 42, 0), Vector(-2.825, 39.25, 0)),
    Part.LineSegment(Vector(-2.825, 39.25, 0), Vector(2.825, 39.25, 0)),
    Part.LineSegment(Vector(2.825, 39.25, 0), Vector(2.825, 42, 0)),
    Part.LineSegment(Vector(2.825, 42, 0), Vector(-2.825, 42, 0)),
], False)
sketch8.addConstraint([
    Sketcher.Constraint("Coincident", 0, 2, 1, 1),
    Sketcher.Constraint("Coincident", 1, 2, 2, 1),
    Sketcher.Constraint("Coincident", 2, 2, 3, 1),
    Sketcher.Constraint("Coincident", 3, 2, 0, 1),
    Sketcher.Constraint("Vertical", 0),
    Sketcher.Constraint("Horizontal", 1),
    Sketcher.Constraint("Vertical", 2),
    Sketcher.Constraint("Horizontal", 3),
    Sketcher.Constraint("DistanceY", -1, 1, 2, 2, Q("42 mm")),
    Sketcher.Constraint("DistanceX", 1, 1, 1, 2, Q("5.65 mm")),
    Sketcher.Constraint("DistanceY", 0, 2, 0, 1, Q("2.75 mm")),
    Sketcher.Constraint("DistanceX", 0, 2, -1, 1, Q("2.825 mm")),
])
pocket6 = body.newObject("PartDesign::Pocket", "Pocket005")
pocket6.Profile = sketch8
pocket6.Type = "ThroughAll"
pocket6.Midplane = True

sketch9 = body.newObject("Sketcher::SketchObject", "Sketch008")
sketch9.AttachmentSupport = (doc.getObject("YZ_Plane"), [""])
sketch9.MapMode = "FlatFace"
sketch9.AttachmentOffset = App.Placement(Vector(0, 0, 38.302), App.Rotation())
sketch9.addGeometry([
    Part.LineSegment(Vector(-34.05, 46, 0), Vector(-34.05, 1, 0)),
    Part.ArcOfCircle(Part.Circle(Vector(-32.15, 1, 0), Vector(0, 0, 1), 1.9), math.radians(179.999988), math.radians(270.000012)),
    Part.LineSegment(Vector(-32.15, -0.9, 0), Vector(32.15, -0.9, 0)),
    Part.ArcOfCircle(Part.Circle(Vector(32.15, 1, 0), Vector(0, 0, 1), 1.9), math.radians(-90.000012), math.radians(0.000012)),
    Part.LineSegment(Vector(34.05, 1, 0), Vector(34.05, 46, 0)),
    Part.LineSegment(Vector(34.05, 46, 0), Vector(33.15, 46, 0)),
    Part.LineSegment(Vector(33.15, 46, 0), Vector(33.15, 1, 0)),
    Part.ArcOfCircle(Part.Circle(Vector(32.150001, 0.999999, 0), Vector(0, 0, 1), 0.999999), math.radians(-90.000043), math.radians(0.000043)),
    Part.LineSegment(Vector(32.15, 0, 0), Vector(-32.15, 0, 0)),
    Part.ArcOfCircle(Part.Circle(Vector(-32.150001, 0.999999, 0), Vector(0, 0, 1), 0.999999), math.radians(179.999957), math.radians(270.000043)),
    Part.LineSegment(Vector(-33.15, 1, 0), Vector(-33.15, 46, 0)),
    Part.LineSegment(Vector(-33.15, 46, 0), Vector(-34.05, 46, 0)),
], False)
sketch9.addConstraint([
    Sketcher.Constraint("Tangent", 0, 2, 1, 1),
    Sketcher.Constraint("Tangent", 1, 2, 2, 1),
    Sketcher.Constraint("Tangent", 2, 2, 3, 1),
    Sketcher.Constraint("Tangent", 3, 2, 4, 1),
    Sketcher.Constraint("Coincident", 4, 2, 5, 1),
    Sketcher.Constraint("Coincident", 5, 2, 6, 1),
    Sketcher.Constraint("Tangent", 6, 2, 7, 2),
    Sketcher.Constraint("Tangent", 7, 1, 8, 1),
    Sketcher.Constraint("Tangent", 8, 2, 9, 2),
    Sketcher.Constraint("Tangent", 9, 1, 10, 1),
    Sketcher.Constraint("Coincident", 10, 2, 11, 1),
    Sketcher.Constraint("Coincident", 11, 2, 0, 1),
    Sketcher.Constraint("Vertical", 0),
    Sketcher.Constraint("Horizontal", 2),
    Sketcher.Constraint("Vertical", 4),
    Sketcher.Constraint("Horizontal", 5),
    Sketcher.Constraint("Vertical", 6),
    Sketcher.Constraint("Horizontal", 8),
    Sketcher.Constraint("Vertical", 10),
    Sketcher.Constraint("Horizontal", 11),
    Sketcher.Constraint("Coincident", 7, 3, 3, 3),
    Sketcher.Constraint("Coincident", 9, 3, 1, 3),
    Sketcher.Constraint("Equal", 1, 3),
    Sketcher.Constraint("Symmetric", 7, 1, 8, 2, -1, 1),
    Sketcher.Constraint("Horizontal", 5, 2, 10, 2),
    Sketcher.Constraint("Radius", 7, Q("0.999999 mm")),
    Sketcher.Constraint("Radius", 1, Q("1.9 mm")),
    Sketcher.Constraint("DistanceY", 0, 2, 0, 1, Q("45 mm")),
    Sketcher.Constraint("DistanceX", 2, 1, 2, 2, Q("64.3 mm")),
])
pad3 = body.newObject("PartDesign::Pad", "Pad002")
pad3.Profile = sketch9
pad3.Length = 2

sketch10 = body.newObject("Sketcher::SketchObject", "Sketch009")
sketch10.AttachmentSupport = (doc.getObject("YZ_Plane"), [""])
sketch10.MapMode = "FlatFace"
sketch10.AttachmentOffset = App.Placement(Vector(0, 0, 40.302), App.Rotation())
sketch10.addGeometry([
    Part.LineSegment(Vector(-28.35, 46, 0), Vector(-33.15, 46, 0)),
    Part.LineSegment(Vector(-33.15, 46, 0), Vector(-33.15, 31.2, 0)),
    Part.LineSegment(Vector(-33.15, 31.2, 0), Vector(-28.35, 36, 0)),
    Part.LineSegment(Vector(-28.35, 36, 0), Vector(-28.35, 46, 0)),
    Part.LineSegment(Vector(33.15, 46, 0), Vector(28.35, 46, 0)),
    Part.LineSegment(Vector(28.35, 46, 0), Vector(28.35, 36, 0)),
    Part.LineSegment(Vector(28.35, 36, 0), Vector(33.15, 31.2, 0)),
    Part.LineSegment(Vector(33.15, 31.2, 0), Vector(33.15, 46, 0)),
], False)
sketch10.addConstraint([
    Sketcher.Constraint("Coincident", 0, 2, 1, 1),
    Sketcher.Constraint("Coincident", 1, 2, 2, 1),
    Sketcher.Constraint("Coincident", 2, 2, 3, 1),
    Sketcher.Constraint("Coincident", 3, 2, 0, 1),
    Sketcher.Constraint("Coincident", 4, 2, 5, 1),
    Sketcher.Constraint("Coincident", 5, 2, 6, 1),
    Sketcher.Constraint("Coincident", 6, 2, 7, 1),
    Sketcher.Constraint("Coincident", 7, 2, 4, 1),
    Sketcher.Constraint("Horizontal", 0),
    Sketcher.Constraint("Vertical", 1),
    Sketcher.Constraint("Vertical", 3),
    Sketcher.Constraint("Horizontal", 4),
    Sketcher.Constraint("Vertical", 5),
    Sketcher.Constraint("Vertical", 7),
    Sketcher.Constraint("Symmetric", 3, 2, 4, 2, -2),
    Sketcher.Constraint("Symmetric", 1, 2, 6, 2, -2),
    Sketcher.Constraint("Perpendicular", 2, 6),
    Sketcher.Constraint("Horizontal", 2, 2, 5, 2),
    Sketcher.Constraint("DistanceY", 3, 1, 3, 2, Q("10 mm")),
    Sketcher.Constraint("DistanceX", 0, 2, 0, 1, Q("4.8 mm")),
    Sketcher.Constraint("DistanceY", -1, 1, 0, 2, Q("46 mm")),
    Sketcher.Constraint("DistanceX", 3, 2, 4, 2, Q("56.7 mm")),
])
pad4 = body.newObject("PartDesign::Pad", "Pad003")
pad4.Profile = sketch10
pad4.Length = 4
pad4.Reversed = True

doc.recompute()
